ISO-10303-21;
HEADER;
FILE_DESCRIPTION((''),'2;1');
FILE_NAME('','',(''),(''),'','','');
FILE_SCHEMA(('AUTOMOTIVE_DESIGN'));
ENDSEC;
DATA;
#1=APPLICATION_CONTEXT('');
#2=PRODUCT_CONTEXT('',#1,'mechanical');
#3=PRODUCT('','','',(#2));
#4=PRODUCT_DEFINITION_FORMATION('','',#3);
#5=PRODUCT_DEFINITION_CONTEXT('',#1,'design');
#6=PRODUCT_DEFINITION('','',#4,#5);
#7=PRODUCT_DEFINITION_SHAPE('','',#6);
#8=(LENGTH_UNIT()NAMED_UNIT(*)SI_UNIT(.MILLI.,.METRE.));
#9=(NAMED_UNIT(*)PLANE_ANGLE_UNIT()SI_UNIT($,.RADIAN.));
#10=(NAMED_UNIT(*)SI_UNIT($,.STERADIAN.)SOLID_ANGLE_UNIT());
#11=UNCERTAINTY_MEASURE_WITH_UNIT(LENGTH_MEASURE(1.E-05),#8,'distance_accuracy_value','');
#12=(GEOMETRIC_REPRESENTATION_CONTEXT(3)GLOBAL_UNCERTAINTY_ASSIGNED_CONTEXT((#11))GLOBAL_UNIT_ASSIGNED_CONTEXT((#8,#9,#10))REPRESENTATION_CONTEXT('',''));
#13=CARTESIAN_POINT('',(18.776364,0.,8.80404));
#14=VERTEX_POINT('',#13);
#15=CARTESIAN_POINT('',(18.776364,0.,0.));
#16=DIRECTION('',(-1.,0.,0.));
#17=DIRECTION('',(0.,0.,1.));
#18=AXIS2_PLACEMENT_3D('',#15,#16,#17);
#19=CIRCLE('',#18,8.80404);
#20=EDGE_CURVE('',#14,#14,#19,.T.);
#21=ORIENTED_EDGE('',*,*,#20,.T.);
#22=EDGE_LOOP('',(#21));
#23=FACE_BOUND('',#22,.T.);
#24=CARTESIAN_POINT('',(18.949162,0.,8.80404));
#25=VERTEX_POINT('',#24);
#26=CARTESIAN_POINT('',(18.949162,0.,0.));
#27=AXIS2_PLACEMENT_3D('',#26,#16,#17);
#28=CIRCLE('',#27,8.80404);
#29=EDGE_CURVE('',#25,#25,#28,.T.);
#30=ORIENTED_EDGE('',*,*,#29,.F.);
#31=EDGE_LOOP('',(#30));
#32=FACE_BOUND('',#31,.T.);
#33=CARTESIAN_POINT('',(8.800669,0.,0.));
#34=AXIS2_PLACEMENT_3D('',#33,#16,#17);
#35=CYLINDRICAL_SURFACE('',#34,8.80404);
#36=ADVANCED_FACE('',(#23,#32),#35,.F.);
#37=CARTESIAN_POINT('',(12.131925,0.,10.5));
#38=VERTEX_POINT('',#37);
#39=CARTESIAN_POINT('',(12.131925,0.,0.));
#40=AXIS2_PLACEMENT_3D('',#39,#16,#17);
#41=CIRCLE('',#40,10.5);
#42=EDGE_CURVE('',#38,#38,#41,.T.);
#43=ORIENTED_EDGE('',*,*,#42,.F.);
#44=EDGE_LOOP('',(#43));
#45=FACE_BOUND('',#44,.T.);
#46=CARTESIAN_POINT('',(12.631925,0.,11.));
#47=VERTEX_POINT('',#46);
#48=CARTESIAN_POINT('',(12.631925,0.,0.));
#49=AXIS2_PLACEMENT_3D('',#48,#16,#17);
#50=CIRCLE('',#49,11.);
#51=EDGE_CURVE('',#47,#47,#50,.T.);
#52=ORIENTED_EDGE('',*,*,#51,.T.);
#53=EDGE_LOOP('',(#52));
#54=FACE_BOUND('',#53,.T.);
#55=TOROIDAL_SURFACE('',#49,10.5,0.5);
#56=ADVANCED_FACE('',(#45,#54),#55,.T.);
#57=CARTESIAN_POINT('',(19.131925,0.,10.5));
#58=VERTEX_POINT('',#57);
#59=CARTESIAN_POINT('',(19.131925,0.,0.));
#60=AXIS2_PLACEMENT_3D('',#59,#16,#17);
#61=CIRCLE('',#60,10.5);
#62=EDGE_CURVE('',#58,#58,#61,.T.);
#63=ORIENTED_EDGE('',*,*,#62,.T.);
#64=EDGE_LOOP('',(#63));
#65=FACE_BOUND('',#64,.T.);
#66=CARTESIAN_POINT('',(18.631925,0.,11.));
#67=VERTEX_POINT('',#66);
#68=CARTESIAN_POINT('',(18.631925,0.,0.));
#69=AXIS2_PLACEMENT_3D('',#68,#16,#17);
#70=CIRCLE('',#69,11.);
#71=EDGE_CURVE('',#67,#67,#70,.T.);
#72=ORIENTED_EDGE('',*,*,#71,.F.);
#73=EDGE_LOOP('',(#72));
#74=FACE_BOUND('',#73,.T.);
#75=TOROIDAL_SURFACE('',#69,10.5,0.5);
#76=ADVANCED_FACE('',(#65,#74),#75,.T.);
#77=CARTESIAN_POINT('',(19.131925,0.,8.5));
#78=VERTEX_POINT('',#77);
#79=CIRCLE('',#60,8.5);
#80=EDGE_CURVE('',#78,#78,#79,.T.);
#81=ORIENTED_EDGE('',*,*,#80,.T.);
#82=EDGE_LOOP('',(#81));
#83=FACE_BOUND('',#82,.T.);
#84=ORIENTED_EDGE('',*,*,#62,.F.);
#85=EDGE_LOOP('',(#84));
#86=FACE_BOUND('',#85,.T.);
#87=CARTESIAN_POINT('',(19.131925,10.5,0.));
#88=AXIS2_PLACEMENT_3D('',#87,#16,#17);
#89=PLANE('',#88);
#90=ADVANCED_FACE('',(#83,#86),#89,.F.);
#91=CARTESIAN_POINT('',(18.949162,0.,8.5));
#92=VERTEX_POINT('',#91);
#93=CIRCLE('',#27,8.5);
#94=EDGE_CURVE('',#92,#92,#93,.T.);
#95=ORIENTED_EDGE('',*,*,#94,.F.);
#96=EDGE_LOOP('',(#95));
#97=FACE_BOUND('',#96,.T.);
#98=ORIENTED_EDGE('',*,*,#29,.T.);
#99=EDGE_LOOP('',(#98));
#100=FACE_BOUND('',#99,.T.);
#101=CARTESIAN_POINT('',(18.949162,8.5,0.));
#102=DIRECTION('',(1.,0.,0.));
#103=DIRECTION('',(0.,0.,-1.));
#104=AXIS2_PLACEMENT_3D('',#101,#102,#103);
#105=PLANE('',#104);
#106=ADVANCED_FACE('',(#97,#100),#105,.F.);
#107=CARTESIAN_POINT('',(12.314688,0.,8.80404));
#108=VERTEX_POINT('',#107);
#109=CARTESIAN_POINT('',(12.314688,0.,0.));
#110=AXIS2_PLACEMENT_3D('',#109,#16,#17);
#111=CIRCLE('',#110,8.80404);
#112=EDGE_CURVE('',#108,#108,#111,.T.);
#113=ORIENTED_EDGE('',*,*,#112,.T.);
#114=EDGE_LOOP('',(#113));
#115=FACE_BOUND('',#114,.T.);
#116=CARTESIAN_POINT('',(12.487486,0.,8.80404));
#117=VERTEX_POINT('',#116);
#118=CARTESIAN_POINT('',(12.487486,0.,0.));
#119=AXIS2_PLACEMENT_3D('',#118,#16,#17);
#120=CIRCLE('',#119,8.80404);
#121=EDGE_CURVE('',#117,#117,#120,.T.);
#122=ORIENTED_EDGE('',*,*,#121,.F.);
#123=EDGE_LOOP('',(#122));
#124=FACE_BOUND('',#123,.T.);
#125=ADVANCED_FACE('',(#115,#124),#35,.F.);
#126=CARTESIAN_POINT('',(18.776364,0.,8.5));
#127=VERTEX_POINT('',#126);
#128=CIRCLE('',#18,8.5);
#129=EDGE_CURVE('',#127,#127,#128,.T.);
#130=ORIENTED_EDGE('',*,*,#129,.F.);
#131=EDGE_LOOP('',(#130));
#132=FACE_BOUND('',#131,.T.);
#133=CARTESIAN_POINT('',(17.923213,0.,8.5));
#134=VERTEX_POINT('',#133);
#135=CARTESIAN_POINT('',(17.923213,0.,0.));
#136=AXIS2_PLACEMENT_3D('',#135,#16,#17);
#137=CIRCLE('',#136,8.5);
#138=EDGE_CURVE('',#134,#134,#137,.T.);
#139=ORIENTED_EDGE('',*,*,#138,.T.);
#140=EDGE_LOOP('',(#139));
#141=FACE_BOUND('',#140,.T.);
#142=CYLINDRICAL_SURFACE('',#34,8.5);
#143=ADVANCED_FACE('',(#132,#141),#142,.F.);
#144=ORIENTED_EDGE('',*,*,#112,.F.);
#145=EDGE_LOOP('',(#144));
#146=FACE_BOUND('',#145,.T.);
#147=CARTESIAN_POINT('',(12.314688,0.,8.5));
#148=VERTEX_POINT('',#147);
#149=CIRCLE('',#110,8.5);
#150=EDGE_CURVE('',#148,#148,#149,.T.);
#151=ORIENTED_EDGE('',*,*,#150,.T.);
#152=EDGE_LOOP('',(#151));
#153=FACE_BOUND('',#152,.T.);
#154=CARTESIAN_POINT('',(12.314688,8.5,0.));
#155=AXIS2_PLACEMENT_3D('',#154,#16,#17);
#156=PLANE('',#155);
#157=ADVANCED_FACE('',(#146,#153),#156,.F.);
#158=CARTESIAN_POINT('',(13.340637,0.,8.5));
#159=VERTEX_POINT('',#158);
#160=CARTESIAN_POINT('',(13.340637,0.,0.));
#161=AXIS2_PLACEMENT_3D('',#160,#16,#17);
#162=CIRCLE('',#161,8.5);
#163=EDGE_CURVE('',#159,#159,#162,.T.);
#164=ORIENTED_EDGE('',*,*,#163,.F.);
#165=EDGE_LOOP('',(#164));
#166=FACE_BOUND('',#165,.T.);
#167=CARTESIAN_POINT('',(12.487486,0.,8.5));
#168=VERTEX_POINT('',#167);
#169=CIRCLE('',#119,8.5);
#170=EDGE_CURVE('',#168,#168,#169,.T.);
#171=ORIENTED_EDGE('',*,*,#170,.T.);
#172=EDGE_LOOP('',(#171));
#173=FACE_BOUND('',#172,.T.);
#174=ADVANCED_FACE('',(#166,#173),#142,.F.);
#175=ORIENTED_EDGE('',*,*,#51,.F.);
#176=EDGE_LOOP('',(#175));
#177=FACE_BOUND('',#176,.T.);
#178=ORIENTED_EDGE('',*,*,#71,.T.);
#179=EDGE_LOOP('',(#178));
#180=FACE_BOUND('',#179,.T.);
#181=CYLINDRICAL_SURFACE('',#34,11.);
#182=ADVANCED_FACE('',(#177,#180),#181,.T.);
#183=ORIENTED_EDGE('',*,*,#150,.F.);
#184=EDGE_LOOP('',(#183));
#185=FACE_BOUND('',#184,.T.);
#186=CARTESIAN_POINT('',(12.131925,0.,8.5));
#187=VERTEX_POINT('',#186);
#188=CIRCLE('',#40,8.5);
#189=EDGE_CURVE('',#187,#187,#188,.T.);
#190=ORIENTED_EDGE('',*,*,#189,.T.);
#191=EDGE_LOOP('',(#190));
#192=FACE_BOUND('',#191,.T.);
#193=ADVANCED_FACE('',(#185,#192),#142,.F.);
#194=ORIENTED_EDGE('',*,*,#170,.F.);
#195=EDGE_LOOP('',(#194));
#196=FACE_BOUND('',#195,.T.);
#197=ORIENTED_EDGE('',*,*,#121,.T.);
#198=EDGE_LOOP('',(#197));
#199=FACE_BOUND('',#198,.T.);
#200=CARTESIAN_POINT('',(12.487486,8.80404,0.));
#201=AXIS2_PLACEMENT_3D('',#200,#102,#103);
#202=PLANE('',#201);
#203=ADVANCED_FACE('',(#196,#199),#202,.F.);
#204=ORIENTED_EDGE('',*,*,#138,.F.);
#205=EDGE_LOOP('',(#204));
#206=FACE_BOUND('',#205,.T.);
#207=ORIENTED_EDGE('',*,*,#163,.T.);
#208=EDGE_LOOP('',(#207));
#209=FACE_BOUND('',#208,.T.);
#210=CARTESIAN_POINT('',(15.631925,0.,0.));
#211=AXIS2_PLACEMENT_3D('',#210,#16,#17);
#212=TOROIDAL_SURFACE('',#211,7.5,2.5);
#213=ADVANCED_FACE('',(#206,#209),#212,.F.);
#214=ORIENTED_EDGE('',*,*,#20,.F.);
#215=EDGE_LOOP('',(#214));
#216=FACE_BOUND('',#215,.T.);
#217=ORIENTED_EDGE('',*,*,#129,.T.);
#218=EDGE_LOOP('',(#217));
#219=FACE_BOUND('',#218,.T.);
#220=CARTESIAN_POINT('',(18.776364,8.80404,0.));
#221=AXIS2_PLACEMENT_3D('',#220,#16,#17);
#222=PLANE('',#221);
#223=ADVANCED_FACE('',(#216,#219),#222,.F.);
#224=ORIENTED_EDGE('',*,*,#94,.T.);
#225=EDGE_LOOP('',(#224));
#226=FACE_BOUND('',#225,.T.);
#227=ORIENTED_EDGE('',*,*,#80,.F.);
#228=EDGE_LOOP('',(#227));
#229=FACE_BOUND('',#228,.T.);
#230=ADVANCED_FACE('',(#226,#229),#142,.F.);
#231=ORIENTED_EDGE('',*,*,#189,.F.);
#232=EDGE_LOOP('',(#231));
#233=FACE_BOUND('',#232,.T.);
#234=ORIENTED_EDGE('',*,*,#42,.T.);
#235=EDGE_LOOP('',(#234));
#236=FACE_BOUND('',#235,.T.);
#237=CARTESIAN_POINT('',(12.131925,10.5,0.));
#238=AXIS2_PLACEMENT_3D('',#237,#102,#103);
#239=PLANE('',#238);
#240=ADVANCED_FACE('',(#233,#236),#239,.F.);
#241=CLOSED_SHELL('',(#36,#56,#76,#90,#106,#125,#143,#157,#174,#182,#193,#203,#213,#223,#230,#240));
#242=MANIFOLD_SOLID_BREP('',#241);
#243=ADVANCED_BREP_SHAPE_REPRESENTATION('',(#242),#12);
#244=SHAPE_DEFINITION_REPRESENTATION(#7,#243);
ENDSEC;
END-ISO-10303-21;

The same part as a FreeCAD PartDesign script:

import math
import FreeCAD as App
import Part
import Sketcher

doc = App.newDocument("Part")
params = doc.addObject("Spreadsheet::Sheet", "Params")
for row, (alias, value) in enumerate([
    ("sketch1_radius", "0.5 mm"),
    ("sketch1_radius2", "2.5 mm"),
    ("sketch1_width", "6 mm"),
    ("sketch1_height", "2 mm"),
    ("revolution_angle", "360 deg"),
], start=1):
    params.set(f"A{row}", alias)
    params.set(f"B{row}", "=" + value)
    params.setAlias(f"B{row}", alias)

body = doc.addObject("PartDesign::Body", "Body")

# Sketch on XY plane
sketch1 = body.newObject("Sketcher::SketchObject", "Sketch")
sketch1.AttachmentSupport = (doc.getObject("XY_Plane"), [""])
sketch1.MapMode = "FlatFace"
sketch1.addGeometry(Part.LineSegment(App.Vector(18.631925, 11, 0), App.Vector(12.631925, 11, 0)), False)
sketch1.addGeometry(Part.ArcOfCircle(Part.Circle(App.Vector(12.631925, 10.5, 0), App.Vector(0, 0, 1), 0.5), math.radians(90), math.radians(180)), False)
sketch1.addGeometry(Part.LineSegment(App.Vector(12.131925, 10.5, 0), App.Vector(12.131925, 8.5, 0)), False)
sketch1.addGeometry(Part.LineSegment(App.Vector(12.131925, 8.5, 0), App.Vector(12.314688, 8.5, 0)), False)
sketch1.addGeometry(Part.LineSegment(App.Vector(12.314688, 8.5, 0), App.Vector(12.314688, 8.80404, 0)), False)
sketch1.addGeometry(Part.LineSegment(App.Vector(12.314688, 8.80404, 0), App.Vector(12.487486, 8.80404, 0)), False)
sketch1.addGeometry(Part.LineSegment(App.Vector(12.487486, 8.80404, 0), App.Vector(12.487486, 8.5, 0)), False)
sketch1.addGeometry(Part.LineSegment(App.Vector(12.487486, 8.5, 0), App.Vector(13.340637, 8.5, 0)), False)
sketch1.addGeometry(Part.ArcOfCircle(Part.Circle(App.Vector(15.631925, 7.5, 0), App.Vector(0, 0, 1), 2.5), math.radians(23.578178), math.radians(156.421822)), False)
sketch1.addGeometry(Part.LineSegment(App.Vector(17.923213, 8.5, 0), App.Vector(18.776364, 8.5, 0)), False)
sketch1.addGeometry(Part.LineSegment(App.Vector(18.776364, 8.5, 0), App.Vector(18.776364, 8.80404, 0)), False)
sketch1.addGeometry(Part.LineSegment(App.Vector(18.776364, 8.80404, 0), App.Vector(18.949162, 8.80404, 0)), False)
sketch1.addGeometry(Part.LineSegment(App.Vector(18.949162, 8.80404, 0), App.Vector(18.949162, 8.5, 0)), False)
sketch1.addGeometry(Part.LineSegment(App.Vector(18.949162, 8.5, 0), App.Vector(19.131925, 8.5, 0)), False)
sketch1.addGeometry(Part.LineSegment(App.Vector(19.131925, 8.5, 0), App.Vector(19.131925, 10.5, 0)), False)
sketch1.addGeometry(Part.ArcOfCircle(Part.Circle(App.Vector(18.631925, 10.5, 0), App.Vector(0, 0, 1), 0.5), math.radians(0), math.radians(90)), False)
sketch1.addConstraint(Sketcher.Constraint("Tangent", 0, 2, 1, 1))
sketch1.addConstraint(Sketcher.Constraint("Tangent", 1, 2, 2, 1))
sketch1.addConstraint(Sketcher.Constraint("Coincident", 2, 2, 3, 1))
sketch1.addConstraint(Sketcher.Constraint("Coincident", 3, 2, 4, 1))
sketch1.addConstraint(Sketcher.Constraint("Coincident", 4, 2, 5, 1))
sketch1.addConstraint(Sketcher.Constraint("Coincident", 5, 2, 6, 1))
sketch1.addConstraint(Sketcher.Constraint("Coincident", 6, 2, 7, 1))
sketch1.addConstraint(Sketcher.Constraint("Coincident", 7, 2, 8, 2))
sketch1.addConstraint(Sketcher.Constraint("Coincident", 8, 1, 9, 1))
sketch1.addConstraint(Sketcher.Constraint("Coincident", 9, 2, 10, 1))
sketch1.addConstraint(Sketcher.Constraint("Coincident", 10, 2, 11, 1))
sketch1.addConstraint(Sketcher.Constraint("Coincident", 11, 2, 12, 1))
sketch1.addConstraint(Sketcher.Constraint("Coincident", 12, 2, 13, 1))
sketch1.addConstraint(Sketcher.Constraint("Coincident", 13, 2, 14, 1))
sketch1.addConstraint(Sketcher.Constraint("Tangent", 14, 2, 15, 1))
sketch1.addConstraint(Sketcher.Constraint("Tangent", 15, 2, 0, 1))
sketch1.addConstraint(Sketcher.Constraint("Horizontal", 0))
sketch1.addConstraint(Sketcher.Constraint("Vertical", 2))
sketch1.addConstraint(Sketcher.Constraint("Horizontal", 3))
sketch1.addConstraint(Sketcher.Constraint("Vertical", 4))
sketch1.addConstraint(Sketcher.Constraint("Horizontal", 5))
sketch1.addConstraint(Sketcher.Constraint("Vertical", 6))
sketch1.addConstraint(Sketcher.Constraint("Horizontal", 7))
sketch1.addConstraint(Sketcher.Constraint("Horizontal", 9))
sketch1.addConstraint(Sketcher.Constraint("Vertical", 10))
sketch1.addConstraint(Sketcher.Constraint("Horizontal", 11))
sketch1.addConstraint(Sketcher.Constraint("Vertical", 12))
sketch1.addConstraint(Sketcher.Constraint("Horizontal", 13))
sketch1.addConstraint(Sketcher.Constraint("Vertical", 14))
sketch1.addConstraint(Sketcher.Constraint("Equal", 1, 15))
sketch1.addConstraint(Sketcher.Constraint("Horizontal", 3, 2, 6, 2))
sketch1.addConstraint(Sketcher.Constraint("Horizontal", 7, 2, 8, 1))
sketch1.addConstraint(Sketcher.Constraint("Horizontal", 5, 2, 10, 2))
sketch1.addConstraint(Sketcher.Constraint("Horizontal", 9, 2, 12, 2))
sketch1.addConstraint(Sketcher.Constraint("Equal", 7, 9))
sketch1.addConstraint(Sketcher.Constraint("Equal", 5, 11))
sketch1.addConstraint(Sketcher.Constraint("Equal", 3, 13))
sketch1.addConstraint(Sketcher.Constraint("Radius", 1, 0.5))
sketch1.addConstraint(Sketcher.Constraint("Radius", 8, 2.5))
sketch1.addConstraint(Sketcher.Constraint("DistanceX", 0, 2, 0, 1, 6.0))
sketch1.addConstraint(Sketcher.Constraint("DistanceY", 2, 2, 2, 1, 2.0))
sketch1.addConstraint(Sketcher.Constraint("DistanceY", -1, 1, 0, 2, 11.0))
sketch1.addConstraint(Sketcher.Constraint("DistanceY", 8, 3, 1, 3, 3.0))
sketch1.addConstraint(Sketcher.Constraint("DistanceX", 7, 1, 7, 2, 0.853151))
sketch1.addConstraint(Sketcher.Constraint("DistanceY", 4, 1, 4, 2, 0.30404))
sketch1.addConstraint(Sketcher.Constraint("DistanceX", 3, 1, 3, 2, 0.182763))
sketch1.addConstraint(Sketcher.Constraint("DistanceX", -1, 1, 11, 2, 18.949162))
sketch1.setExpression("Constraints[37]", "Params.sketch1_radius")
sketch1.setExpression("Constraints[38]", "Params.sketch1_radius2")
sketch1.setExpression("Constraints[39]", "Params.sketch1_width")
sketch1.setExpression("Constraints[40]", "Params.sketch1_height")
revolution = body.newObject("PartDesign::Revolution", "Revolution")
revolution.Profile = sketch1
revolution.ReferenceAxis = (sketch1, ["H_Axis"])
revolution.setExpression("Angle", "Params.revolution_angle")

doc.recompute()
